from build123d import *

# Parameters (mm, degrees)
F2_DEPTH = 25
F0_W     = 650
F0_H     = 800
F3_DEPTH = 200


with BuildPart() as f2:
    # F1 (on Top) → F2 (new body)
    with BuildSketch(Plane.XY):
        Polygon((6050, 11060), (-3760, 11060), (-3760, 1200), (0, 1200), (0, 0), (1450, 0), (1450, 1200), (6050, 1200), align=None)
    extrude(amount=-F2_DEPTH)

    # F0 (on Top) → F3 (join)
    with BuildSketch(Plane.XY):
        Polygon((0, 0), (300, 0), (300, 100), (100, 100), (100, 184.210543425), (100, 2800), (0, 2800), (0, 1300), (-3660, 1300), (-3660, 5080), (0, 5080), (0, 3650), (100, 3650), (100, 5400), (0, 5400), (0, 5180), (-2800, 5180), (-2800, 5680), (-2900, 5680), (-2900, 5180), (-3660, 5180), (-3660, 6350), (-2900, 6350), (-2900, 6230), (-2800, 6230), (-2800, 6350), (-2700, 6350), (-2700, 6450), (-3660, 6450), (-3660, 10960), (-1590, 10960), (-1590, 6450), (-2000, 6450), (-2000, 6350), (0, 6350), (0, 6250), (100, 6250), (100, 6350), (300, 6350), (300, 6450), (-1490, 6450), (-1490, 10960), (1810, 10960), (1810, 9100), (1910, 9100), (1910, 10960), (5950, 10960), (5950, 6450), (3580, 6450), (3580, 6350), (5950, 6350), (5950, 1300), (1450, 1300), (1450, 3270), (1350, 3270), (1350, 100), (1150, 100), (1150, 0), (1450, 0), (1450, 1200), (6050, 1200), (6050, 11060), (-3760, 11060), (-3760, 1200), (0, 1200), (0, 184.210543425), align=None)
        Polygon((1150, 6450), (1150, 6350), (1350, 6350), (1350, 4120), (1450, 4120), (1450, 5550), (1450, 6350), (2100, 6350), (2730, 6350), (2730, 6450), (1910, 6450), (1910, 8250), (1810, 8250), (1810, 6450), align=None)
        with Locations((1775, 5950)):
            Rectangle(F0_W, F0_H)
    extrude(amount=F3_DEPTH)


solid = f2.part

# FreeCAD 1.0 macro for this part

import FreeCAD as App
import Part
import Sketcher

V = App.Vector


def add_polygon(sketch, points):
    """Adds a closed chain of lines whose ends are joined by coincident constraints."""
    first, n = sketch.GeometryCount, len(points)
    for a, b in zip(points, points[1:] + points[:1]):
        sketch.addGeometry(Part.LineSegment(App.Vector(*a, 0), App.Vector(*b, 0)), False)
    for i in range(n):
        sketch.addConstraint(Sketcher.Constraint("Coincident", first + i, 2, first + (i + 1) % n, 1))

doc = App.newDocument("Part")
body = doc.addObject("PartDesign::Body", "Body")

sketch1 = body.newObject("Sketcher::SketchObject", "Sketch")
sketch1.AttachmentSupport = (doc.getObject("XY_Plane"), [""])
sketch1.MapMode = "FlatFace"
add_polygon(sketch1, [(6050, 11060), (-3760, 11060), (-3760, 1200), (0, 1200), (0, 0), (1450, 0), (1450, 1200), (6050, 1200)])
sketch1.addConstraint([
    Sketcher.Constraint("Horizontal", 0),
    Sketcher.Constraint("Vertical", 1),
    Sketcher.Constraint("Horizontal", 2),
    Sketcher.Constraint("Vertical", 3),
    Sketcher.Constraint("Horizontal", 4),
    Sketcher.Constraint("Vertical", 5),
    Sketcher.Constraint("Horizontal", 6),
    Sketcher.Constraint("Vertical", 7),
    Sketcher.Constraint("Coincident", 3, 2, -1, 1),
    Sketcher.Constraint("Horizontal", 2, 2, 5, 2),
    Sketcher.Constraint("DistanceX", 0, 2, 0, 1, 9810.0),
    Sketcher.Constraint("DistanceX", 2, 1, 2, 2, 3760.0),
    Sketcher.Constraint("DistanceX", 4, 1, 4, 2, 1450.0),
    Sketcher.Constraint("DistanceY", 1, 2, 1, 1, 9860.0),
    Sketcher.Constraint("DistanceY", 3, 2, 3, 1, 1200.0),
])
pad1 = body.newObject("PartDesign::Pad", "Pad")
pad1.Profile = sketch1
pad1.Length = 25
pad1.Reversed = True

sketch2 = body.newObject("Sketcher::SketchObject", "Sketch001")
sketch2.AttachmentSupport = (doc.getObject("XY_Plane"), [""])
sketch2.MapMode = "FlatFace"
add_polygon(sketch2, [(0, 0), (300, 0), (300, 100), (100, 100), (100, 2800), (0, 2800), (0, 1300), (-3660, 1300), (-3660, 5080), (0, 5080), (0, 3650), (100, 3650), (100, 5400), (0, 5400), (0, 5180), (-2800, 5180), (-2800, 5680), (-2900, 5680), (-2900, 5180), (-3660, 5180), (-3660, 6350), (-2900, 6350), (-2900, 6230), (-2800, 6230), (-2800, 6350), (-2700, 6350), (-2700, 6450), (-3660, 6450), (-3660, 10960), (-1590, 10960), (-1590, 6450), (-2000, 6450), (-2000, 6350), (0, 6350), (0, 6250), (100, 6250), (100, 6350), (300, 6350), (300, 6450), (-1490, 6450), (-1490, 10960), (1810, 10960), (1810, 9100), (1910, 9100), (1910, 10960), (5950, 10960), (5950, 6450), (3580, 6450), (3580, 6350), (5950, 6350), (5950, 1300), (1450, 1300), (1450, 3270), (1350, 3270), (1350, 100), (1150, 100), (1150, 0), (1450, 0), (1450, 1200), (6050, 1200), (6050, 11060), (-3760, 11060), (-3760, 1200), (0, 1200)])
add_polygon(sketch2, [(1150, 6450), (1150, 6350), (1350, 6350), (1350, 4120), (1450, 4120), (1450, 5550), (2100, 5550), (2100, 6350), (2730, 6350), (2730, 6450), (1910, 6450), (1910, 8250), (1810, 8250), (1810, 6450)])
sketch2.addConstraint([
    Sketcher.Constraint("Horizontal", 0),
    Sketcher.Constraint("Vertical", 1),
    Sketcher.Constraint("Horizontal", 2),
    Sketcher.Constraint("Vertical", 3),
    Sketcher.Constraint("Horizontal", 4),
    Sketcher.Constraint("Vertical", 5),
    Sketcher.Constraint("Horizontal", 6),
    Sketcher.Constraint("Vertical", 7),
    Sketcher.Constraint("Horizontal", 8),
    Sketcher.Constraint("Vertical", 9),
    Sketcher.Constraint("Horizontal", 10),
    Sketcher.Constraint("Vertical", 11),
    Sketcher.Constraint("Horizontal", 12),
    Sketcher.Constraint("Vertical", 13),
    Sketcher.Constraint("Horizontal", 14),
    Sketcher.Constraint("Vertical", 15),
    Sketcher.Constraint("Horizontal", 16),
    Sketcher.Constraint("Vertical", 17),
    Sketcher.Constraint("Horizontal", 18),
    Sketcher.Constraint("Vertical", 19),
    Sketcher.Constraint("Horizontal", 20),
    Sketcher.Constraint("Vertical", 21),
    Sketcher.Constraint("Horizontal", 22),
    Sketcher.Constraint("Vertical", 23),
    Sketcher.Constraint("Horizontal", 24),
    Sketcher.Constraint("Vertical", 25),
    Sketcher.Constraint("Horizontal", 26),
    Sketcher.Constraint("Vertical", 27),
    Sketcher.Constraint("Horizontal", 28),
    Sketcher.Constraint("Vertical", 29),
    Sketcher.Constraint("Horizontal", 30),
    Sketcher.Constraint("Vertical", 31),
    Sketcher.Constraint("Horizontal", 32),
    Sketcher.Constraint("Vertical", 33),
    Sketcher.Constraint("Horizontal", 34),
    Sketcher.Constraint("Vertical", 35),
    Sketcher.Constraint("Horizontal", 36),
    Sketcher.Constraint("Vertical", 37),
    Sketcher.Constraint("Horizontal", 38),
    Sketcher.Constraint("Vertical", 39),
    Sketcher.Constraint("Horizontal", 40),
    Sketcher.Constraint("Vertical", 41),
    Sketcher.Constraint("Horizontal", 42),
    Sketcher.Constraint("Vertical", 43),
    Sketcher.Constraint("Horizontal", 44),
    Sketcher.Constraint("Vertical", 45),
    Sketcher.Constraint("Horizontal", 46),
    Sketcher.Constraint("Vertical", 47),
    Sketcher.Constraint("Horizontal", 48),
    Sketcher.Constraint("Vertical", 49),
    Sketcher.Constraint("Horizontal", 50),
    Sketcher.Constraint("Vertical", 51),
    Sketcher.Constraint("Horizontal", 52),
    Sketcher.Constraint("Vertical", 53),
    Sketcher.Constraint("Horizontal", 54),
    Sketcher.Constraint("Vertical", 55),
    Sketcher.Constraint("Horizontal", 56),
    Sketcher.Constraint("Vertical", 57),
    Sketcher.Constraint("Horizontal", 58),
    Sketcher.Constraint("Vertical", 59),
    Sketcher.Constraint("Horizontal", 60),
    Sketcher.Constraint("Vertical", 61),
    Sketcher.Constraint("Horizontal", 62),
    Sketcher.Constraint("Vertical", 63),
    Sketcher.Constraint("Vertical", 64),
    Sketcher.Constraint("Horizontal", 65),
    Sketcher.Constraint("Vertical", 66),
    Sketcher.Constraint("Horizontal", 67),
    Sketcher.Constraint("Vertical", 68),
    Sketcher.Constraint("Horizontal", 69),
    Sketcher.Constraint("Vertical", 70),
    Sketcher.Constraint("Horizontal", 71),
    Sketcher.Constraint("Vertical", 72),
    Sketcher.Constraint("Horizontal", 73),
    Sketcher.Constraint("Vertical", 74),
    Sketcher.Constraint("Horizontal", 75),
    Sketcher.Constraint("Vertical", 76),
    Sketcher.Constraint("Horizontal", 77),
    Sketcher.Constraint("Coincident", 63, 2, -1, 1),
    Sketcher.Constraint("PointOnObject", 4, 2, -2),
    Sketcher.Constraint("PointOnObject", 8, 2, -2),
    Sketcher.Constraint("PointOnObject", 12, 2, -2),
    Sketcher.Constraint("PointOnObject", 32, 2, -2),
    Sketcher.Constraint("PointOnObject", 55, 2, -1),
    Sketcher.Constraint("Horizontal", 14, 2, 17, 2),
    Sketcher.Constraint("Horizontal", 20, 2, 23, 2),
    Sketcher.Constraint("Horizontal", 26, 2, 29, 2),
    Sketcher.Constraint("Horizontal", 24, 2, 31, 2),
    Sketcher.Constraint("Horizontal", 32, 2, 35, 2),
    Sketcher.Constraint("Horizontal", 30, 2, 37, 2),
    Sketcher.Constraint("Horizontal", 28, 2, 39, 2),
    Sketcher.Constraint("Horizontal", 40, 2, 43, 2),
    Sketcher.Constraint("Horizontal", 38, 2, 45, 2),
    Sketcher.Constraint("Horizontal", 36, 2, 47, 2),
    Sketcher.Constraint("Horizontal", 6, 2, 49, 2),
    Sketcher.Constraint("Horizontal", 2, 2, 53, 2),
    Sketcher.Constraint("Horizontal", 58, 2, 61, 2),
    Sketcher.Constraint("Horizontal", 48, 2, 64, 2),
    Sketcher.Constraint("Horizontal", 65, 2, 70, 2),
    Sketcher.Constraint("Horizontal", 46, 2, 72, 2),
    Sketcher.Constraint("Horizontal", 73, 2, 76, 2),
    Sketcher.Constraint("Vertical", 3, 2, 10, 2),
    Sketcher.Constraint("Vertical", 7, 2, 18, 2),
    Sketcher.Constraint("Vertical", 17, 2, 20, 2),
    Sketcher.Constraint("Vertical", 15, 2, 22, 2),
    Sketcher.Constraint("Vertical", 19, 2, 26, 2),
    Sketcher.Constraint("Vertical", 11, 2, 34, 2),
    Sketcher.Constraint("Vertical", 1, 2, 36, 2),
    Sketcher.Constraint("Vertical", 45, 2, 48, 2),
    Sketcher.Constraint("Vertical", 51, 2, 56, 2),
    Sketcher.Constraint("Vertical", 55, 2, 64, 2),
    Sketcher.Constraint("Vertical", 53, 2, 65, 2),
    Sketcher.Constraint("Vertical", 57, 2, 67, 2),
    Sketcher.Constraint("Vertical", 43, 2, 73, 2),
    Sketcher.Constraint("Vertical", 41, 2, 75, 2),
    Sketcher.Constraint("Equal", 12, 16),
    Sketcher.Constraint("Equal", 22, 24),
    Sketcher.Constraint("Equal", 34, 42),
    Sketcher.Constraint("Equal", 42, 52),
    Sketcher.Constraint("Equal", 36, 54),
    Sketcher.Constraint("Equal", 75, 1),
    Sketcher.Constraint("Equal", 1, 25),
    Sketcher.Constraint("Equal", 31, 33),
    Sketcher.Constraint("Equal", 9, 68),
    Sketcher.Constraint("DistanceX", 0, 1, 0, 2, 300.0),
    Sketcher.Constraint("DistanceX", 2, 2, 2, 1, 200.0),
    Sketcher.Constraint("DistanceX", 6, 2, 6, 1, 3660.0),
    Sketcher.Constraint("DistanceX", 14, 2, 14, 1, 2800.0),
    Sketcher.Constraint("DistanceX", 28, 1, 28, 2, 2070.0),
    Sketcher.Constraint("DistanceX", 30, 2, 30, 1, 410.0),
    Sketcher.Constraint("DistanceX", 38, 2, 38, 1, 1790.0),
    Sketcher.Constraint("DistanceX", 40, 1, 40, 2, 3300.0),
    Sketcher.Constraint("DistanceX", 44, 1, 44, 2, 4040.0),
    Sketcher.Constraint("DistanceX", 46, 2, 46, 1, 2370.0),
    Sketcher.Constraint("DistanceX", 50, 2, 50, 1, 4500.0),
    Sketcher.Constraint("DistanceX", 58, 1, 58, 2, 4600.0),
    Sketcher.Constraint("DistanceX", 60, 2, 60, 1, 9810.0),
    Sketcher.Constraint("DistanceX", 69, 1, 69, 2, 650.0),
    Sketcher.Constraint("DistanceX", 71, 1, 71, 2, 630.0),
    Sketcher.Constraint("DistanceY", 3, 1, 3, 2, 2700.0),
    Sketcher.Constraint("DistanceY", 5, 2, 5, 1, 1500.0),
    Sketcher.Constraint("DistanceY", 7, 1, 7, 2, 3780.0),
    Sketcher.Constraint("DistanceY", 9, 2, 9, 1, 1430.0),
    Sketcher.Constraint("DistanceY", 11, 1, 11, 2, 1750.0),
    Sketcher.Constraint("DistanceY", 13, 2, 13, 1, 220.0),
    Sketcher.Constraint("DistanceY", 15, 1, 15, 2, 500.0),
    Sketcher.Constraint("DistanceY", 19, 1, 19, 2, 1170.0),
    Sketcher.Constraint("DistanceY", 21, 2, 21, 1, 120.0),
    Sketcher.Constraint("DistanceY", 27, 1, 27, 2, 4510.0),
    Sketcher.Constraint("DistanceY", 41, 2, 41, 1, 1860.0),
    Sketcher.Constraint("DistanceY", 51, 1, 51, 2, 1970.0),
    Sketcher.Constraint("DistanceY", 57, 1, 57, 2, 1200.0),
    Sketcher.Constraint("DistanceY", 59, 1, 59, 2, 9860.0),
    Sketcher.Constraint("DistanceY", 66, 2, 66, 1, 2230.0),
    Sketcher.Constraint("DistanceY", 74, 1, 74, 2, 1800.0),
])
pad2 = body.newObject("PartDesign::Pad", "Pad001")
pad2.Profile = sketch2
pad2.Length = 200

doc.recompute()
